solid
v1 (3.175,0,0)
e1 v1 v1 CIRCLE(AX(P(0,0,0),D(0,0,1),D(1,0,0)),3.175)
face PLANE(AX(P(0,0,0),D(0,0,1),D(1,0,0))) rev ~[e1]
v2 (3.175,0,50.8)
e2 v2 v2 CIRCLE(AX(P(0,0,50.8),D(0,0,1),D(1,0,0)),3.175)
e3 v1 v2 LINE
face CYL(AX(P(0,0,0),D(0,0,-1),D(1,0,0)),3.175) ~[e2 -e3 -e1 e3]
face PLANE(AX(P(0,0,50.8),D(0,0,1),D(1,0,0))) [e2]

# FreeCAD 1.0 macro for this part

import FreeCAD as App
import Part
import Sketcher
from FreeCAD import Vector
Q = App.Units.Quantity

doc = App.newDocument("Part")
params = doc.addObject("Spreadsheet::Sheet", "Params")
for row, (alias, value) in enumerate([
    ("sketch1_diameter", "0.25 in"),
    ("pad1_length", "2 in"),
], start=1):
    params.set(f"A{row}", alias)
    params.set(f"B{row}", "=" + value)
    params.setAlias(f"B{row}", alias)

body = doc.addObject("PartDesign::Body", "Body")

# Sketch on XY plane
sketch1 = body.newObject("Sketcher::SketchObject", "Sketch")
sketch1.AttachmentSupport = (doc.getObject("XY_Plane"), [""])
sketch1.MapMode = "FlatFace"
sketch1.addGeometry(Part.Circle(Vector(0, 0, 0), Vector(0, 0, 1), 3.2), False)
sketch1.addConstraint([
    Sketcher.Constraint("Coincident", 0, 3, -1, 1),
    Sketcher.Constraint("Diameter", 0, Q("0.25 in")),
])
sketch1.setExpression("Constraints[1]", "Params.sketch1_diameter")
pad1 = body.newObject("PartDesign::Pad", "Pad")
pad1.Profile = sketch1
pad1.setExpression("Length", "Params.pad1_length")

doc.recompute()
